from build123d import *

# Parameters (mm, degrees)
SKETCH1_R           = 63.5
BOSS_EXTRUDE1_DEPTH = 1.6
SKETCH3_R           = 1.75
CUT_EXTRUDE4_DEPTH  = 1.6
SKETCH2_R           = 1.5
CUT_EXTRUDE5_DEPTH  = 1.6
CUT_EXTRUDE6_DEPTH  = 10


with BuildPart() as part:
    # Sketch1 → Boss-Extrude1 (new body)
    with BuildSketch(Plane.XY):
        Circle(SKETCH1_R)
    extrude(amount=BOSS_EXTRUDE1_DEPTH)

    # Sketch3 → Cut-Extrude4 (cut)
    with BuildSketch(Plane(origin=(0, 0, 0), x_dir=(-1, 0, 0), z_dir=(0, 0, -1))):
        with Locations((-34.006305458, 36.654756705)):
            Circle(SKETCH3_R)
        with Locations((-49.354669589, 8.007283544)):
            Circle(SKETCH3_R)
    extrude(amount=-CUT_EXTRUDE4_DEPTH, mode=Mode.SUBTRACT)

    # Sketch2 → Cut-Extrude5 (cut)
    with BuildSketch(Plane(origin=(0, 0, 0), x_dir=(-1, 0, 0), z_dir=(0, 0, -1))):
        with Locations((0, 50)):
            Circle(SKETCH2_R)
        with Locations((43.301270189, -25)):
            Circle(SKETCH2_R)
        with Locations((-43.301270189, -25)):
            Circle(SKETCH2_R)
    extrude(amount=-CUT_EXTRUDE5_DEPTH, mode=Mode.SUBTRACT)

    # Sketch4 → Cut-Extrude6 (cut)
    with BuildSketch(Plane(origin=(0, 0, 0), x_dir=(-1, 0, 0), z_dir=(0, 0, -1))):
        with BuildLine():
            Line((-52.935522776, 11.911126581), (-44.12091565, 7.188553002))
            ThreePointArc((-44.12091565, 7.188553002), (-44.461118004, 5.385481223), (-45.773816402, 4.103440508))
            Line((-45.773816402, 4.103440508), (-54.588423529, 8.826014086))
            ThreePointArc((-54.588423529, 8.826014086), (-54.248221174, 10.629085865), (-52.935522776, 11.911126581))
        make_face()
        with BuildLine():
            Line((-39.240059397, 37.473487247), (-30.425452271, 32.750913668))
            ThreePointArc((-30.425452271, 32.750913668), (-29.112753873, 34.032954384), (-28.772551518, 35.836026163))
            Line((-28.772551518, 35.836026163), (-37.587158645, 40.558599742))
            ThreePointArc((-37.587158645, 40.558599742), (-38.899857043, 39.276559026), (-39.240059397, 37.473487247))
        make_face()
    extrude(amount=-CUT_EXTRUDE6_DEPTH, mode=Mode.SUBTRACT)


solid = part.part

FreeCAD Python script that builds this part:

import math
import FreeCAD as App
import Part
import Sketcher
from FreeCAD import Vector
Q = App.Units.Quantity

doc = App.newDocument("Part")
body = doc.addObject("PartDesign::Body", "Body")

sketch1 = body.newObject("Sketcher::SketchObject", "Sketch")
sketch1.AttachmentSupport = (doc.getObject("XY_Plane"), [""])
sketch1.MapMode = "FlatFace"
sketch1.addGeometry(Part.Circle(Vector(0, 0, 0), Vector(0, 0, 1), 64), False)
sketch1.addConstraint([
    Sketcher.Constraint("Coincident", 0, 3, -1, 1),
    Sketcher.Constraint("Diameter", 0, Q("127 mm")),
])
pad1 = body.newObject("PartDesign::Pad", "Pad")
pad1.Profile = sketch1
pad1.Length = 1.6

sketch2 = body.newObject("Sketcher::SketchObject", "Sketch001")
sketch2.AttachmentSupport = (doc.getObject("XY_Plane"), [""])
sketch2.MapMode = "FlatFace"
sketch2.addGeometry([
    Part.Circle(Vector(34, 36.7, 0), Vector(0, 0, 1), 1.8),
    Part.Circle(Vector(49.4, 8, 0), Vector(0, 0, 1), 1.8),
], False)
sketch2.addConstraint([
    Sketcher.Constraint("Equal", 0, 1),
    Sketcher.Constraint("Diameter", 0, Q("3.5 mm")),
    Sketcher.Constraint("DistanceX", -1, 1, 1, 3, Q("49.35467 mm")),
    Sketcher.Constraint("DistanceX", -1, 1, 0, 3, Q("34.006305 mm")),
    Sketcher.Constraint("DistanceY", -1, 1, 0, 3, Q("36.654757 mm")),
    Sketcher.Constraint("DistanceY", -1, 1, 1, 3, Q("8.007284 mm")),
])
pocket1 = body.newObject("PartDesign::Pocket", "Pocket")
pocket1.Profile = sketch2
pocket1.Length = 1.6
pocket1.Reversed = True

sketch3 = body.newObject("Sketcher::SketchObject", "Sketch002")
sketch3.AttachmentSupport = (doc.getObject("XY_Plane"), [""])
sketch3.MapMode = "FlatFace"
sketch3.addGeometry([
    Part.Circle(Vector(0, 50, 0), Vector(0, 0, 1), 1.5),
    Part.Circle(Vector(-43.3, -25, 0), Vector(0, 0, 1), 1.5),
    Part.Circle(Vector(43.3, -25, 0), Vector(0, 0, 1), 1.5),
], False)
sketch3.addConstraint([
    Sketcher.Constraint("Equal", 0, 1),
    Sketcher.Constraint("Equal", 1, 2),
    Sketcher.Constraint("Symmetric", 1, 3, 2, 3, -2),
    Sketcher.Constraint("PointOnObject", 0, 3, -2),
    Sketcher.Constraint("Diameter", 0, Q("3 mm")),
    Sketcher.Constraint("DistanceY", -1, 1, 0, 3, Q("50 mm")),
    Sketcher.Constraint("DistanceY", 1, 3, -1, 1, Q("25 mm")),
    Sketcher.Constraint("DistanceX", 1, 3, -1, 1, Q("43.30127 mm")),
])
pocket2 = body.newObject("PartDesign::Pocket", "Pocket001")
pocket2.Profile = sketch3
pocket2.Length = 1.6
pocket2.Reversed = True

sketch4 = body.newObject("Sketcher::SketchObject", "Sketch003")
sketch4.AttachmentSupport = (doc.getObject("XY_Plane"), [""])
sketch4.MapMode = "FlatFace"
sketch4.addGeometry([
    Part.LineSegment(Vector(44.1, 7.2, 0), Vector(52.9, 11.9, 0)),
    Part.ArcOfCircle(Part.Circle(Vector(51.6, 9.2, 0), Vector(0, 0, 1), 3.1), math.radians(-7), math.radians(63)),
    Part.LineSegment(Vector(54.6, 8.8, 0), Vector(45.8, 4.1, 0)),
    Part.ArcOfCircle(Part.Circle(Vector(47.2, 6.8, 0), Vector(0, 0, 1), 3.1), math.radians(173), math.radians(243)),
    Part.LineSegment(Vector(39.2, 37.5, 0), Vector(30.4, 32.8, 0)),
    Part.ArcOfCircle(Part.Circle(Vector(31.8, 35.5, 0), Vector(0, 0, 1), 3.1), math.radians(173), math.radians(243)),
    Part.LineSegment(Vector(28.8, 35.8, 0), Vector(37.6, 40.6, 0)),
    Part.ArcOfCircle(Part.Circle(Vector(36.2, 37.8, 0), Vector(0, 0, 1), 3.1), math.radians(-7), math.radians(63)),
], False)
sketch4.addConstraint([
    Sketcher.Constraint("Coincident", 0, 2, 1, 2),
    Sketcher.Constraint("Coincident", 1, 1, 2, 1),
    Sketcher.Constraint("Coincident", 2, 2, 3, 2),
    Sketcher.Constraint("Coincident", 3, 1, 0, 1),
    Sketcher.Constraint("Coincident", 4, 2, 5, 2),
    Sketcher.Constraint("Coincident", 5, 1, 6, 1),
    Sketcher.Constraint("Coincident", 6, 2, 7, 2),
    Sketcher.Constraint("Coincident", 7, 1, 4, 1),
    Sketcher.Constraint("Equal", 1, 3),
    Sketcher.Constraint("Equal", 3, 5),
    Sketcher.Constraint("Equal", 5, 7),
    Sketcher.Constraint("Parallel", 0, 2),
    Sketcher.Constraint("Parallel", 2, 4),
    Sketcher.Constraint("Parallel", 4, 6),
    Sketcher.Constraint("Equal", 0, 2),
    Sketcher.Constraint("Equal", 2, 4),
    Sketcher.Constraint("Equal", 4, 6),
    Sketcher.Constraint("Distance", 0, Q("10 mm")),
    Sketcher.Constraint("Radius", 1, Q("3.051639 mm")),
    Sketcher.Constraint("DistanceY", -1, 1, 7, 3, Q("37.8354 mm")),
    Sketcher.Constraint("DistanceY", -1, 1, 6, 2, Q("40.5586 mm")),
    Sketcher.Constraint("DistanceX", 1, 3, 0, 2, Q("1.377201 mm")),
    Sketcher.Constraint("DistanceX", 0, 2, 1, 1, Q("1.652901 mm")),
    Sketcher.Constraint("DistanceY", 1, 1, 5, 3, Q("26.648099 mm")),
    Sketcher.Constraint("DistanceX", 5, 1, 4, 2, Q("1.652901 mm")),
    Sketcher.Constraint("DistanceX", -1, 1, 1, 3, Q("51.558321 mm")),
    Sketcher.Constraint("DistanceY", -1, 1, 3, 3, Q("6.82664 mm")),
    Sketcher.Constraint("DistanceX", -1, 1, 5, 1, Q("28.772552 mm")),
])
pocket3 = body.newObject("PartDesign::Pocket", "Pocket002")
pocket3.Profile = sketch4
pocket3.Length = 10
pocket3.Reversed = True

doc.recompute()
